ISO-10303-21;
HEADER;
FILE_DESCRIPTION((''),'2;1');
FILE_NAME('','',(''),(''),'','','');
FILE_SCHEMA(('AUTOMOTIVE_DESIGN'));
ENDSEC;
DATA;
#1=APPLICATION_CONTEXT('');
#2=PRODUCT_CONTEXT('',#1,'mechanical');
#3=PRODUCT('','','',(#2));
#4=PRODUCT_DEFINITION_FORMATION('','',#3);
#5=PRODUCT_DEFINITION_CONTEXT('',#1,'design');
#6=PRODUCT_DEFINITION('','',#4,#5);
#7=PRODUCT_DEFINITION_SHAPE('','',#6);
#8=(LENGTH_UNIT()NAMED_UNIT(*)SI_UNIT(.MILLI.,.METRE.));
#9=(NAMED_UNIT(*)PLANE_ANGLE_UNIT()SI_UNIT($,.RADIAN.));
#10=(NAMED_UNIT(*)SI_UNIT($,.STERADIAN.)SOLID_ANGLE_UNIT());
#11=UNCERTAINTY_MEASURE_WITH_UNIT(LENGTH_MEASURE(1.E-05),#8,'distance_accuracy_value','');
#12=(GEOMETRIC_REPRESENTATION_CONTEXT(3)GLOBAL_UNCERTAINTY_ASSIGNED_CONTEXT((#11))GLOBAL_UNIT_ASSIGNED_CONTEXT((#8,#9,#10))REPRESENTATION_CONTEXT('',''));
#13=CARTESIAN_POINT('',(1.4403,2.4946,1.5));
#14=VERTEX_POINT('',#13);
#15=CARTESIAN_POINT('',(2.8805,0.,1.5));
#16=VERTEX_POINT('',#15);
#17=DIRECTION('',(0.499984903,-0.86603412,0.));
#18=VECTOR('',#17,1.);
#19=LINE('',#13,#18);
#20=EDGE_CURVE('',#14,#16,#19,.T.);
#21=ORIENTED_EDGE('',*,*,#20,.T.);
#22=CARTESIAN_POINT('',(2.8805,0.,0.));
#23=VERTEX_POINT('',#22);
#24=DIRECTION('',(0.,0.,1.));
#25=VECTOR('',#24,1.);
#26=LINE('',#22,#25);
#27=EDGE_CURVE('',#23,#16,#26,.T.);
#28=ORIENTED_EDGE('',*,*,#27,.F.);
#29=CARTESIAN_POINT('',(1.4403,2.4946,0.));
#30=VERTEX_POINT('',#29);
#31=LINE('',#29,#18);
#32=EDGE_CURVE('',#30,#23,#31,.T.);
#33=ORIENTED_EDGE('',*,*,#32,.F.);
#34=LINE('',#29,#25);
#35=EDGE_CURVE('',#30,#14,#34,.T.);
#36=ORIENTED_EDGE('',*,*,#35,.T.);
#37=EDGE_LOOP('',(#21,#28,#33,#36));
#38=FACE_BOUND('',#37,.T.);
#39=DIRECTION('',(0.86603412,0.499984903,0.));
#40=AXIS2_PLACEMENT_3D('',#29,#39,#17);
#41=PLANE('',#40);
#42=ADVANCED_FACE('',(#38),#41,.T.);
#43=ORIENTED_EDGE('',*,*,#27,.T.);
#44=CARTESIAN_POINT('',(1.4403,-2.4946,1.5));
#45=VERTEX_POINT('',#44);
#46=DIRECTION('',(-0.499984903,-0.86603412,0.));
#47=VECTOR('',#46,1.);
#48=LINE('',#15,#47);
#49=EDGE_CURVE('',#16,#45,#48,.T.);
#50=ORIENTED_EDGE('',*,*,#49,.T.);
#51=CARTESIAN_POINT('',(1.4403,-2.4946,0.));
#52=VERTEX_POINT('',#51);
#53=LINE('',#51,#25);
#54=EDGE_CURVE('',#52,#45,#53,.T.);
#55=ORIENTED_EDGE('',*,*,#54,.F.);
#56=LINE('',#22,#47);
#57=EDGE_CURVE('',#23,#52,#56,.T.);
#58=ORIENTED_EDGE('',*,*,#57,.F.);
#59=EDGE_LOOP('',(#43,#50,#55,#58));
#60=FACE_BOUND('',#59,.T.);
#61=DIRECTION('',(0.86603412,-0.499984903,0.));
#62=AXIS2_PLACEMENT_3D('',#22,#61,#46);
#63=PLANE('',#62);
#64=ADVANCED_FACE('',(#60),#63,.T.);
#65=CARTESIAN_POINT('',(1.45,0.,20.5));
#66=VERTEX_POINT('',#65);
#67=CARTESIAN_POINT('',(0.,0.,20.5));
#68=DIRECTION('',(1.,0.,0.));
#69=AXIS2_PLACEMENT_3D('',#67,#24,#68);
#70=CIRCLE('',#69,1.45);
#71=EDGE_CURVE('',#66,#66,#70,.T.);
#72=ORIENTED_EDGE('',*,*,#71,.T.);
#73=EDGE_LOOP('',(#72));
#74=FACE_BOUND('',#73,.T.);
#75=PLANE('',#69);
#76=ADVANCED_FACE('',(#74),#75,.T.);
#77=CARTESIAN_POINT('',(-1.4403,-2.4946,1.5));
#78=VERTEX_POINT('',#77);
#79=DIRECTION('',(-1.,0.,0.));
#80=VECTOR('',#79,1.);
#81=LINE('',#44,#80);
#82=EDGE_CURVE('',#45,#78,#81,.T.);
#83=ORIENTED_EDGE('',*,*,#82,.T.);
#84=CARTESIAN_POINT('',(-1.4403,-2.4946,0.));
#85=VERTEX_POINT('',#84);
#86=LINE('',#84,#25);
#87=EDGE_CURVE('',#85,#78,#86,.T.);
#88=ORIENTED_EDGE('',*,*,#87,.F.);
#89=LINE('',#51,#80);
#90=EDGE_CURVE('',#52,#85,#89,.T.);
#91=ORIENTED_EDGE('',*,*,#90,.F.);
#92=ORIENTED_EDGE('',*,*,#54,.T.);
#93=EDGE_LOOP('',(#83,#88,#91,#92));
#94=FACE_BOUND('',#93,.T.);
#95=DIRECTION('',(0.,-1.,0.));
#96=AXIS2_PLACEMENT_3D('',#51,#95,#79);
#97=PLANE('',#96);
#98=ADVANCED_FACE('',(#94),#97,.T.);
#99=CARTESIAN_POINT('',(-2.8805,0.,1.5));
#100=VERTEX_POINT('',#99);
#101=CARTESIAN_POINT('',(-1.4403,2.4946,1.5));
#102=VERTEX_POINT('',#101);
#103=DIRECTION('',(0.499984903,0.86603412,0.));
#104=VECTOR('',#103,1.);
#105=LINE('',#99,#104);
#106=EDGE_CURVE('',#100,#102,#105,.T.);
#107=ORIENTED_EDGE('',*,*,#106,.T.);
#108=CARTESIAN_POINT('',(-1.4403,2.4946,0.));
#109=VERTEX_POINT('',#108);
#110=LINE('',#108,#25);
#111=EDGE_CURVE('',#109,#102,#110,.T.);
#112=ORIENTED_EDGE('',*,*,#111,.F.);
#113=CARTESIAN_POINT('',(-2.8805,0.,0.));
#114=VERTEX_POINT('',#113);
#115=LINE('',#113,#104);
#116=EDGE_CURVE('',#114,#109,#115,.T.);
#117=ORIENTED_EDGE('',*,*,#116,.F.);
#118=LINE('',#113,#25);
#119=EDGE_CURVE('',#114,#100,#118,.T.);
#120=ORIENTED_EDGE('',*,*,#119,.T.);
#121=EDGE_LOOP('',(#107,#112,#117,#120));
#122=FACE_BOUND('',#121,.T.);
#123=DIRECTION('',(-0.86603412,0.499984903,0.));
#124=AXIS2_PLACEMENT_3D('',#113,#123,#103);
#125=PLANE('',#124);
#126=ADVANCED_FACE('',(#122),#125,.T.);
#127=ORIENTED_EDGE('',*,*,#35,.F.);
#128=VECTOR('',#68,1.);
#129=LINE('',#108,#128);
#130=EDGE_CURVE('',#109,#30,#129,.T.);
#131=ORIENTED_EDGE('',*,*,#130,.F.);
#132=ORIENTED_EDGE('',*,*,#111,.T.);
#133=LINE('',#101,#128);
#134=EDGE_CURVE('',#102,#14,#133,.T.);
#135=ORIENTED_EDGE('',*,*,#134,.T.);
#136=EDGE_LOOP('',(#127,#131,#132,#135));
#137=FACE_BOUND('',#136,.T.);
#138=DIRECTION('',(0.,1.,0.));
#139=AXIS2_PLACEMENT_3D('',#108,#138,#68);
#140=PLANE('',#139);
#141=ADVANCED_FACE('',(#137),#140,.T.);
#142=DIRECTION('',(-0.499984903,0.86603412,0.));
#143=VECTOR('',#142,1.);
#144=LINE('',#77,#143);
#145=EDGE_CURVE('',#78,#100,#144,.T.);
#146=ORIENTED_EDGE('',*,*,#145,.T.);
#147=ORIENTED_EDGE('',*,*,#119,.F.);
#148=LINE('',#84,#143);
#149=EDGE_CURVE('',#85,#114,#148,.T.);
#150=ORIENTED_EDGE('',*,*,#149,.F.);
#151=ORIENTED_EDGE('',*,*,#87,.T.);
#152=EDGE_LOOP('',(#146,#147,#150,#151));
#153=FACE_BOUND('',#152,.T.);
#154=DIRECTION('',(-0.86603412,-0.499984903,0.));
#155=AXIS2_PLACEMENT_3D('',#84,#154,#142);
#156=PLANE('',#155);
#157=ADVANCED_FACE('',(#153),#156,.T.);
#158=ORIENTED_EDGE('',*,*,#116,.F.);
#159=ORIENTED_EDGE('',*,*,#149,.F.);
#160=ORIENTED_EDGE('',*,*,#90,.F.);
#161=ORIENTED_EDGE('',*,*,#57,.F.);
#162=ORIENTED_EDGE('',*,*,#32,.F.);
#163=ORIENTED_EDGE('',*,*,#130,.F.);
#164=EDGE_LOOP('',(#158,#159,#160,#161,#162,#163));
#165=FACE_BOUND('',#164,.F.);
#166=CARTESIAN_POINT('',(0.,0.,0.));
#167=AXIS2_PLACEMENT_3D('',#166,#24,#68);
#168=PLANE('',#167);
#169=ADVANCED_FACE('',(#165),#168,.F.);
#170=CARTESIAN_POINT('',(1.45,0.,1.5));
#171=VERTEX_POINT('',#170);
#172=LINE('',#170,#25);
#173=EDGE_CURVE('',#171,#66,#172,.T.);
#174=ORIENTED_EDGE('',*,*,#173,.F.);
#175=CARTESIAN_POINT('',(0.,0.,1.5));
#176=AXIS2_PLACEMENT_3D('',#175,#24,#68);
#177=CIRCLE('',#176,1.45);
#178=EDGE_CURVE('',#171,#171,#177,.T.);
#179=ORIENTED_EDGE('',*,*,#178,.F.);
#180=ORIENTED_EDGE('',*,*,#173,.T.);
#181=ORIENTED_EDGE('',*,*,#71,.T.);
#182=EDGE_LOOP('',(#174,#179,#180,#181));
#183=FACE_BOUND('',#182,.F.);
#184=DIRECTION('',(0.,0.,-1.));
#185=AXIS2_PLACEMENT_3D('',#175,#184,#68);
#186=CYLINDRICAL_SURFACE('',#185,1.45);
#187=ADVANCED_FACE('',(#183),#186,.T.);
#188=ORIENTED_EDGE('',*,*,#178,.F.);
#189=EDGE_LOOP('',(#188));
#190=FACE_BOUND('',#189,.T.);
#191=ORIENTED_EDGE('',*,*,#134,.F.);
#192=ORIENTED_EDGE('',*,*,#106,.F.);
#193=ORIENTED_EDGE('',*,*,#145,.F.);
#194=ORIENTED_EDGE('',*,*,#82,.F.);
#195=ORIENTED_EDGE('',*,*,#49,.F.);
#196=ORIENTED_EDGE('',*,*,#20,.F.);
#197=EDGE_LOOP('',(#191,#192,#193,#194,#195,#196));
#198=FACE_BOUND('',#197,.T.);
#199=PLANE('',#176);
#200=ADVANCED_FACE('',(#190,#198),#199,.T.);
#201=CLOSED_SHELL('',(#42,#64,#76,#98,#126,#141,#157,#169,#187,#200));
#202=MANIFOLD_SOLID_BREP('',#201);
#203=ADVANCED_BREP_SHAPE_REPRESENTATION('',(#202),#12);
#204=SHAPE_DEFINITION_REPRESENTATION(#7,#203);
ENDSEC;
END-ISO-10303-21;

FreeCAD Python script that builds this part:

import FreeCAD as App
import Part
import Sketcher

V = App.Vector
Q = App.Units.Quantity

doc = App.newDocument("Part")
body = doc.addObject("PartDesign::Body", "Body")

# Sketch on XY plane
sketch1 = doc.addObject("Sketcher::SketchObject", "Sketch")
body.addObject(sketch1)
sketch1.AttachmentSupport = (doc.XY_Plane, [""])
sketch1.MapMode = "FlatFace"
sketch1.addGeometry(Part.LineSegment(V(-1.4, 2.5, 0), V(-2.9, 0, 0)), False)
sketch1.addGeometry(Part.LineSegment(V(-2.9, 0, 0), V(-1.4, -2.5, 0)), False)
sketch1.addGeometry(Part.LineSegment(V(-1.4, -2.5, 0), V(1.4, -2.5, 0)), False)
sketch1.addGeometry(Part.LineSegment(V(1.4, -2.5, 0), V(2.9, 0, 0)), False)
sketch1.addGeometry(Part.LineSegment(V(2.9, 0, 0), V(1.4, 2.5, 0)), False)
sketch1.addGeometry(Part.LineSegment(V(1.4, 2.5, 0), V(-1.4, 2.5, 0)), False)
sketch1.addConstraint(Sketcher.Constraint("Coincident", 0, 2, 1, 1))
sketch1.addConstraint(Sketcher.Constraint("Coincident", 1, 2, 2, 1))
sketch1.addConstraint(Sketcher.Constraint("Coincident", 2, 2, 3, 1))
sketch1.addConstraint(Sketcher.Constraint("Coincident", 3, 2, 4, 1))
sketch1.addConstraint(Sketcher.Constraint("Coincident", 4, 2, 5, 1))
sketch1.addConstraint(Sketcher.Constraint("Coincident", 5, 2, 0, 1))
sketch1.addConstraint(Sketcher.Constraint("Horizontal", 2))
sketch1.addConstraint(Sketcher.Constraint("Horizontal", 5))
sketch1.addConstraint(Sketcher.Constraint("Symmetric", 0, 2, 3, 2, -1, 1))
sketch1.addConstraint(Sketcher.Constraint("Symmetric", 1, 2, 4, 2, -1, 1))
sketch1.addConstraint(Sketcher.Constraint("PointOnObject", 0, 2, -1))
sketch1.addConstraint(Sketcher.Constraint("Parallel", 0, 3))
sketch1.addConstraint(Sketcher.Constraint("Vertical", 2, 2, 4, 2))
sketch1.addConstraint(Sketcher.Constraint("Angle", 0, Q("-119.999 deg")))
sketch1.addConstraint(Sketcher.Constraint("DistanceX", 2, 1, 2, 2, Q("2.8806 mm")))
sketch1.addConstraint(Sketcher.Constraint("DistanceX", 0, 2, 3, 2, Q("5.761 mm")))
pad1 = doc.addObject("PartDesign::Pad", "Pad")
body.addObject(pad1)
pad1.Profile = sketch1
pad1.Length = 1.5

# Sketch on XY plane
sketch2 = doc.addObject("Sketcher::SketchObject", "Sketch001")
body.addObject(sketch2)
sketch2.AttachmentSupport = (doc.XY_Plane, [""])
sketch2.MapMode = "FlatFace"
sketch2.AttachmentOffset = App.Placement(V(0, 0, 1.5), App.Rotation())
sketch2.addGeometry(Part.Circle(V(0, 0, 0), V(0, 0, 1), 1.4), False)
sketch2.addConstraint(Sketcher.Constraint("Coincident", 0, 3, -1, 1))
sketch2.addConstraint(Sketcher.Constraint("Diameter", 0, Q("2.9 mm")))
pad2 = doc.addObject("PartDesign::Pad", "Pad001")
body.addObject(pad2)
pad2.Profile = sketch2
pad2.Length = 19

doc.recompute()
